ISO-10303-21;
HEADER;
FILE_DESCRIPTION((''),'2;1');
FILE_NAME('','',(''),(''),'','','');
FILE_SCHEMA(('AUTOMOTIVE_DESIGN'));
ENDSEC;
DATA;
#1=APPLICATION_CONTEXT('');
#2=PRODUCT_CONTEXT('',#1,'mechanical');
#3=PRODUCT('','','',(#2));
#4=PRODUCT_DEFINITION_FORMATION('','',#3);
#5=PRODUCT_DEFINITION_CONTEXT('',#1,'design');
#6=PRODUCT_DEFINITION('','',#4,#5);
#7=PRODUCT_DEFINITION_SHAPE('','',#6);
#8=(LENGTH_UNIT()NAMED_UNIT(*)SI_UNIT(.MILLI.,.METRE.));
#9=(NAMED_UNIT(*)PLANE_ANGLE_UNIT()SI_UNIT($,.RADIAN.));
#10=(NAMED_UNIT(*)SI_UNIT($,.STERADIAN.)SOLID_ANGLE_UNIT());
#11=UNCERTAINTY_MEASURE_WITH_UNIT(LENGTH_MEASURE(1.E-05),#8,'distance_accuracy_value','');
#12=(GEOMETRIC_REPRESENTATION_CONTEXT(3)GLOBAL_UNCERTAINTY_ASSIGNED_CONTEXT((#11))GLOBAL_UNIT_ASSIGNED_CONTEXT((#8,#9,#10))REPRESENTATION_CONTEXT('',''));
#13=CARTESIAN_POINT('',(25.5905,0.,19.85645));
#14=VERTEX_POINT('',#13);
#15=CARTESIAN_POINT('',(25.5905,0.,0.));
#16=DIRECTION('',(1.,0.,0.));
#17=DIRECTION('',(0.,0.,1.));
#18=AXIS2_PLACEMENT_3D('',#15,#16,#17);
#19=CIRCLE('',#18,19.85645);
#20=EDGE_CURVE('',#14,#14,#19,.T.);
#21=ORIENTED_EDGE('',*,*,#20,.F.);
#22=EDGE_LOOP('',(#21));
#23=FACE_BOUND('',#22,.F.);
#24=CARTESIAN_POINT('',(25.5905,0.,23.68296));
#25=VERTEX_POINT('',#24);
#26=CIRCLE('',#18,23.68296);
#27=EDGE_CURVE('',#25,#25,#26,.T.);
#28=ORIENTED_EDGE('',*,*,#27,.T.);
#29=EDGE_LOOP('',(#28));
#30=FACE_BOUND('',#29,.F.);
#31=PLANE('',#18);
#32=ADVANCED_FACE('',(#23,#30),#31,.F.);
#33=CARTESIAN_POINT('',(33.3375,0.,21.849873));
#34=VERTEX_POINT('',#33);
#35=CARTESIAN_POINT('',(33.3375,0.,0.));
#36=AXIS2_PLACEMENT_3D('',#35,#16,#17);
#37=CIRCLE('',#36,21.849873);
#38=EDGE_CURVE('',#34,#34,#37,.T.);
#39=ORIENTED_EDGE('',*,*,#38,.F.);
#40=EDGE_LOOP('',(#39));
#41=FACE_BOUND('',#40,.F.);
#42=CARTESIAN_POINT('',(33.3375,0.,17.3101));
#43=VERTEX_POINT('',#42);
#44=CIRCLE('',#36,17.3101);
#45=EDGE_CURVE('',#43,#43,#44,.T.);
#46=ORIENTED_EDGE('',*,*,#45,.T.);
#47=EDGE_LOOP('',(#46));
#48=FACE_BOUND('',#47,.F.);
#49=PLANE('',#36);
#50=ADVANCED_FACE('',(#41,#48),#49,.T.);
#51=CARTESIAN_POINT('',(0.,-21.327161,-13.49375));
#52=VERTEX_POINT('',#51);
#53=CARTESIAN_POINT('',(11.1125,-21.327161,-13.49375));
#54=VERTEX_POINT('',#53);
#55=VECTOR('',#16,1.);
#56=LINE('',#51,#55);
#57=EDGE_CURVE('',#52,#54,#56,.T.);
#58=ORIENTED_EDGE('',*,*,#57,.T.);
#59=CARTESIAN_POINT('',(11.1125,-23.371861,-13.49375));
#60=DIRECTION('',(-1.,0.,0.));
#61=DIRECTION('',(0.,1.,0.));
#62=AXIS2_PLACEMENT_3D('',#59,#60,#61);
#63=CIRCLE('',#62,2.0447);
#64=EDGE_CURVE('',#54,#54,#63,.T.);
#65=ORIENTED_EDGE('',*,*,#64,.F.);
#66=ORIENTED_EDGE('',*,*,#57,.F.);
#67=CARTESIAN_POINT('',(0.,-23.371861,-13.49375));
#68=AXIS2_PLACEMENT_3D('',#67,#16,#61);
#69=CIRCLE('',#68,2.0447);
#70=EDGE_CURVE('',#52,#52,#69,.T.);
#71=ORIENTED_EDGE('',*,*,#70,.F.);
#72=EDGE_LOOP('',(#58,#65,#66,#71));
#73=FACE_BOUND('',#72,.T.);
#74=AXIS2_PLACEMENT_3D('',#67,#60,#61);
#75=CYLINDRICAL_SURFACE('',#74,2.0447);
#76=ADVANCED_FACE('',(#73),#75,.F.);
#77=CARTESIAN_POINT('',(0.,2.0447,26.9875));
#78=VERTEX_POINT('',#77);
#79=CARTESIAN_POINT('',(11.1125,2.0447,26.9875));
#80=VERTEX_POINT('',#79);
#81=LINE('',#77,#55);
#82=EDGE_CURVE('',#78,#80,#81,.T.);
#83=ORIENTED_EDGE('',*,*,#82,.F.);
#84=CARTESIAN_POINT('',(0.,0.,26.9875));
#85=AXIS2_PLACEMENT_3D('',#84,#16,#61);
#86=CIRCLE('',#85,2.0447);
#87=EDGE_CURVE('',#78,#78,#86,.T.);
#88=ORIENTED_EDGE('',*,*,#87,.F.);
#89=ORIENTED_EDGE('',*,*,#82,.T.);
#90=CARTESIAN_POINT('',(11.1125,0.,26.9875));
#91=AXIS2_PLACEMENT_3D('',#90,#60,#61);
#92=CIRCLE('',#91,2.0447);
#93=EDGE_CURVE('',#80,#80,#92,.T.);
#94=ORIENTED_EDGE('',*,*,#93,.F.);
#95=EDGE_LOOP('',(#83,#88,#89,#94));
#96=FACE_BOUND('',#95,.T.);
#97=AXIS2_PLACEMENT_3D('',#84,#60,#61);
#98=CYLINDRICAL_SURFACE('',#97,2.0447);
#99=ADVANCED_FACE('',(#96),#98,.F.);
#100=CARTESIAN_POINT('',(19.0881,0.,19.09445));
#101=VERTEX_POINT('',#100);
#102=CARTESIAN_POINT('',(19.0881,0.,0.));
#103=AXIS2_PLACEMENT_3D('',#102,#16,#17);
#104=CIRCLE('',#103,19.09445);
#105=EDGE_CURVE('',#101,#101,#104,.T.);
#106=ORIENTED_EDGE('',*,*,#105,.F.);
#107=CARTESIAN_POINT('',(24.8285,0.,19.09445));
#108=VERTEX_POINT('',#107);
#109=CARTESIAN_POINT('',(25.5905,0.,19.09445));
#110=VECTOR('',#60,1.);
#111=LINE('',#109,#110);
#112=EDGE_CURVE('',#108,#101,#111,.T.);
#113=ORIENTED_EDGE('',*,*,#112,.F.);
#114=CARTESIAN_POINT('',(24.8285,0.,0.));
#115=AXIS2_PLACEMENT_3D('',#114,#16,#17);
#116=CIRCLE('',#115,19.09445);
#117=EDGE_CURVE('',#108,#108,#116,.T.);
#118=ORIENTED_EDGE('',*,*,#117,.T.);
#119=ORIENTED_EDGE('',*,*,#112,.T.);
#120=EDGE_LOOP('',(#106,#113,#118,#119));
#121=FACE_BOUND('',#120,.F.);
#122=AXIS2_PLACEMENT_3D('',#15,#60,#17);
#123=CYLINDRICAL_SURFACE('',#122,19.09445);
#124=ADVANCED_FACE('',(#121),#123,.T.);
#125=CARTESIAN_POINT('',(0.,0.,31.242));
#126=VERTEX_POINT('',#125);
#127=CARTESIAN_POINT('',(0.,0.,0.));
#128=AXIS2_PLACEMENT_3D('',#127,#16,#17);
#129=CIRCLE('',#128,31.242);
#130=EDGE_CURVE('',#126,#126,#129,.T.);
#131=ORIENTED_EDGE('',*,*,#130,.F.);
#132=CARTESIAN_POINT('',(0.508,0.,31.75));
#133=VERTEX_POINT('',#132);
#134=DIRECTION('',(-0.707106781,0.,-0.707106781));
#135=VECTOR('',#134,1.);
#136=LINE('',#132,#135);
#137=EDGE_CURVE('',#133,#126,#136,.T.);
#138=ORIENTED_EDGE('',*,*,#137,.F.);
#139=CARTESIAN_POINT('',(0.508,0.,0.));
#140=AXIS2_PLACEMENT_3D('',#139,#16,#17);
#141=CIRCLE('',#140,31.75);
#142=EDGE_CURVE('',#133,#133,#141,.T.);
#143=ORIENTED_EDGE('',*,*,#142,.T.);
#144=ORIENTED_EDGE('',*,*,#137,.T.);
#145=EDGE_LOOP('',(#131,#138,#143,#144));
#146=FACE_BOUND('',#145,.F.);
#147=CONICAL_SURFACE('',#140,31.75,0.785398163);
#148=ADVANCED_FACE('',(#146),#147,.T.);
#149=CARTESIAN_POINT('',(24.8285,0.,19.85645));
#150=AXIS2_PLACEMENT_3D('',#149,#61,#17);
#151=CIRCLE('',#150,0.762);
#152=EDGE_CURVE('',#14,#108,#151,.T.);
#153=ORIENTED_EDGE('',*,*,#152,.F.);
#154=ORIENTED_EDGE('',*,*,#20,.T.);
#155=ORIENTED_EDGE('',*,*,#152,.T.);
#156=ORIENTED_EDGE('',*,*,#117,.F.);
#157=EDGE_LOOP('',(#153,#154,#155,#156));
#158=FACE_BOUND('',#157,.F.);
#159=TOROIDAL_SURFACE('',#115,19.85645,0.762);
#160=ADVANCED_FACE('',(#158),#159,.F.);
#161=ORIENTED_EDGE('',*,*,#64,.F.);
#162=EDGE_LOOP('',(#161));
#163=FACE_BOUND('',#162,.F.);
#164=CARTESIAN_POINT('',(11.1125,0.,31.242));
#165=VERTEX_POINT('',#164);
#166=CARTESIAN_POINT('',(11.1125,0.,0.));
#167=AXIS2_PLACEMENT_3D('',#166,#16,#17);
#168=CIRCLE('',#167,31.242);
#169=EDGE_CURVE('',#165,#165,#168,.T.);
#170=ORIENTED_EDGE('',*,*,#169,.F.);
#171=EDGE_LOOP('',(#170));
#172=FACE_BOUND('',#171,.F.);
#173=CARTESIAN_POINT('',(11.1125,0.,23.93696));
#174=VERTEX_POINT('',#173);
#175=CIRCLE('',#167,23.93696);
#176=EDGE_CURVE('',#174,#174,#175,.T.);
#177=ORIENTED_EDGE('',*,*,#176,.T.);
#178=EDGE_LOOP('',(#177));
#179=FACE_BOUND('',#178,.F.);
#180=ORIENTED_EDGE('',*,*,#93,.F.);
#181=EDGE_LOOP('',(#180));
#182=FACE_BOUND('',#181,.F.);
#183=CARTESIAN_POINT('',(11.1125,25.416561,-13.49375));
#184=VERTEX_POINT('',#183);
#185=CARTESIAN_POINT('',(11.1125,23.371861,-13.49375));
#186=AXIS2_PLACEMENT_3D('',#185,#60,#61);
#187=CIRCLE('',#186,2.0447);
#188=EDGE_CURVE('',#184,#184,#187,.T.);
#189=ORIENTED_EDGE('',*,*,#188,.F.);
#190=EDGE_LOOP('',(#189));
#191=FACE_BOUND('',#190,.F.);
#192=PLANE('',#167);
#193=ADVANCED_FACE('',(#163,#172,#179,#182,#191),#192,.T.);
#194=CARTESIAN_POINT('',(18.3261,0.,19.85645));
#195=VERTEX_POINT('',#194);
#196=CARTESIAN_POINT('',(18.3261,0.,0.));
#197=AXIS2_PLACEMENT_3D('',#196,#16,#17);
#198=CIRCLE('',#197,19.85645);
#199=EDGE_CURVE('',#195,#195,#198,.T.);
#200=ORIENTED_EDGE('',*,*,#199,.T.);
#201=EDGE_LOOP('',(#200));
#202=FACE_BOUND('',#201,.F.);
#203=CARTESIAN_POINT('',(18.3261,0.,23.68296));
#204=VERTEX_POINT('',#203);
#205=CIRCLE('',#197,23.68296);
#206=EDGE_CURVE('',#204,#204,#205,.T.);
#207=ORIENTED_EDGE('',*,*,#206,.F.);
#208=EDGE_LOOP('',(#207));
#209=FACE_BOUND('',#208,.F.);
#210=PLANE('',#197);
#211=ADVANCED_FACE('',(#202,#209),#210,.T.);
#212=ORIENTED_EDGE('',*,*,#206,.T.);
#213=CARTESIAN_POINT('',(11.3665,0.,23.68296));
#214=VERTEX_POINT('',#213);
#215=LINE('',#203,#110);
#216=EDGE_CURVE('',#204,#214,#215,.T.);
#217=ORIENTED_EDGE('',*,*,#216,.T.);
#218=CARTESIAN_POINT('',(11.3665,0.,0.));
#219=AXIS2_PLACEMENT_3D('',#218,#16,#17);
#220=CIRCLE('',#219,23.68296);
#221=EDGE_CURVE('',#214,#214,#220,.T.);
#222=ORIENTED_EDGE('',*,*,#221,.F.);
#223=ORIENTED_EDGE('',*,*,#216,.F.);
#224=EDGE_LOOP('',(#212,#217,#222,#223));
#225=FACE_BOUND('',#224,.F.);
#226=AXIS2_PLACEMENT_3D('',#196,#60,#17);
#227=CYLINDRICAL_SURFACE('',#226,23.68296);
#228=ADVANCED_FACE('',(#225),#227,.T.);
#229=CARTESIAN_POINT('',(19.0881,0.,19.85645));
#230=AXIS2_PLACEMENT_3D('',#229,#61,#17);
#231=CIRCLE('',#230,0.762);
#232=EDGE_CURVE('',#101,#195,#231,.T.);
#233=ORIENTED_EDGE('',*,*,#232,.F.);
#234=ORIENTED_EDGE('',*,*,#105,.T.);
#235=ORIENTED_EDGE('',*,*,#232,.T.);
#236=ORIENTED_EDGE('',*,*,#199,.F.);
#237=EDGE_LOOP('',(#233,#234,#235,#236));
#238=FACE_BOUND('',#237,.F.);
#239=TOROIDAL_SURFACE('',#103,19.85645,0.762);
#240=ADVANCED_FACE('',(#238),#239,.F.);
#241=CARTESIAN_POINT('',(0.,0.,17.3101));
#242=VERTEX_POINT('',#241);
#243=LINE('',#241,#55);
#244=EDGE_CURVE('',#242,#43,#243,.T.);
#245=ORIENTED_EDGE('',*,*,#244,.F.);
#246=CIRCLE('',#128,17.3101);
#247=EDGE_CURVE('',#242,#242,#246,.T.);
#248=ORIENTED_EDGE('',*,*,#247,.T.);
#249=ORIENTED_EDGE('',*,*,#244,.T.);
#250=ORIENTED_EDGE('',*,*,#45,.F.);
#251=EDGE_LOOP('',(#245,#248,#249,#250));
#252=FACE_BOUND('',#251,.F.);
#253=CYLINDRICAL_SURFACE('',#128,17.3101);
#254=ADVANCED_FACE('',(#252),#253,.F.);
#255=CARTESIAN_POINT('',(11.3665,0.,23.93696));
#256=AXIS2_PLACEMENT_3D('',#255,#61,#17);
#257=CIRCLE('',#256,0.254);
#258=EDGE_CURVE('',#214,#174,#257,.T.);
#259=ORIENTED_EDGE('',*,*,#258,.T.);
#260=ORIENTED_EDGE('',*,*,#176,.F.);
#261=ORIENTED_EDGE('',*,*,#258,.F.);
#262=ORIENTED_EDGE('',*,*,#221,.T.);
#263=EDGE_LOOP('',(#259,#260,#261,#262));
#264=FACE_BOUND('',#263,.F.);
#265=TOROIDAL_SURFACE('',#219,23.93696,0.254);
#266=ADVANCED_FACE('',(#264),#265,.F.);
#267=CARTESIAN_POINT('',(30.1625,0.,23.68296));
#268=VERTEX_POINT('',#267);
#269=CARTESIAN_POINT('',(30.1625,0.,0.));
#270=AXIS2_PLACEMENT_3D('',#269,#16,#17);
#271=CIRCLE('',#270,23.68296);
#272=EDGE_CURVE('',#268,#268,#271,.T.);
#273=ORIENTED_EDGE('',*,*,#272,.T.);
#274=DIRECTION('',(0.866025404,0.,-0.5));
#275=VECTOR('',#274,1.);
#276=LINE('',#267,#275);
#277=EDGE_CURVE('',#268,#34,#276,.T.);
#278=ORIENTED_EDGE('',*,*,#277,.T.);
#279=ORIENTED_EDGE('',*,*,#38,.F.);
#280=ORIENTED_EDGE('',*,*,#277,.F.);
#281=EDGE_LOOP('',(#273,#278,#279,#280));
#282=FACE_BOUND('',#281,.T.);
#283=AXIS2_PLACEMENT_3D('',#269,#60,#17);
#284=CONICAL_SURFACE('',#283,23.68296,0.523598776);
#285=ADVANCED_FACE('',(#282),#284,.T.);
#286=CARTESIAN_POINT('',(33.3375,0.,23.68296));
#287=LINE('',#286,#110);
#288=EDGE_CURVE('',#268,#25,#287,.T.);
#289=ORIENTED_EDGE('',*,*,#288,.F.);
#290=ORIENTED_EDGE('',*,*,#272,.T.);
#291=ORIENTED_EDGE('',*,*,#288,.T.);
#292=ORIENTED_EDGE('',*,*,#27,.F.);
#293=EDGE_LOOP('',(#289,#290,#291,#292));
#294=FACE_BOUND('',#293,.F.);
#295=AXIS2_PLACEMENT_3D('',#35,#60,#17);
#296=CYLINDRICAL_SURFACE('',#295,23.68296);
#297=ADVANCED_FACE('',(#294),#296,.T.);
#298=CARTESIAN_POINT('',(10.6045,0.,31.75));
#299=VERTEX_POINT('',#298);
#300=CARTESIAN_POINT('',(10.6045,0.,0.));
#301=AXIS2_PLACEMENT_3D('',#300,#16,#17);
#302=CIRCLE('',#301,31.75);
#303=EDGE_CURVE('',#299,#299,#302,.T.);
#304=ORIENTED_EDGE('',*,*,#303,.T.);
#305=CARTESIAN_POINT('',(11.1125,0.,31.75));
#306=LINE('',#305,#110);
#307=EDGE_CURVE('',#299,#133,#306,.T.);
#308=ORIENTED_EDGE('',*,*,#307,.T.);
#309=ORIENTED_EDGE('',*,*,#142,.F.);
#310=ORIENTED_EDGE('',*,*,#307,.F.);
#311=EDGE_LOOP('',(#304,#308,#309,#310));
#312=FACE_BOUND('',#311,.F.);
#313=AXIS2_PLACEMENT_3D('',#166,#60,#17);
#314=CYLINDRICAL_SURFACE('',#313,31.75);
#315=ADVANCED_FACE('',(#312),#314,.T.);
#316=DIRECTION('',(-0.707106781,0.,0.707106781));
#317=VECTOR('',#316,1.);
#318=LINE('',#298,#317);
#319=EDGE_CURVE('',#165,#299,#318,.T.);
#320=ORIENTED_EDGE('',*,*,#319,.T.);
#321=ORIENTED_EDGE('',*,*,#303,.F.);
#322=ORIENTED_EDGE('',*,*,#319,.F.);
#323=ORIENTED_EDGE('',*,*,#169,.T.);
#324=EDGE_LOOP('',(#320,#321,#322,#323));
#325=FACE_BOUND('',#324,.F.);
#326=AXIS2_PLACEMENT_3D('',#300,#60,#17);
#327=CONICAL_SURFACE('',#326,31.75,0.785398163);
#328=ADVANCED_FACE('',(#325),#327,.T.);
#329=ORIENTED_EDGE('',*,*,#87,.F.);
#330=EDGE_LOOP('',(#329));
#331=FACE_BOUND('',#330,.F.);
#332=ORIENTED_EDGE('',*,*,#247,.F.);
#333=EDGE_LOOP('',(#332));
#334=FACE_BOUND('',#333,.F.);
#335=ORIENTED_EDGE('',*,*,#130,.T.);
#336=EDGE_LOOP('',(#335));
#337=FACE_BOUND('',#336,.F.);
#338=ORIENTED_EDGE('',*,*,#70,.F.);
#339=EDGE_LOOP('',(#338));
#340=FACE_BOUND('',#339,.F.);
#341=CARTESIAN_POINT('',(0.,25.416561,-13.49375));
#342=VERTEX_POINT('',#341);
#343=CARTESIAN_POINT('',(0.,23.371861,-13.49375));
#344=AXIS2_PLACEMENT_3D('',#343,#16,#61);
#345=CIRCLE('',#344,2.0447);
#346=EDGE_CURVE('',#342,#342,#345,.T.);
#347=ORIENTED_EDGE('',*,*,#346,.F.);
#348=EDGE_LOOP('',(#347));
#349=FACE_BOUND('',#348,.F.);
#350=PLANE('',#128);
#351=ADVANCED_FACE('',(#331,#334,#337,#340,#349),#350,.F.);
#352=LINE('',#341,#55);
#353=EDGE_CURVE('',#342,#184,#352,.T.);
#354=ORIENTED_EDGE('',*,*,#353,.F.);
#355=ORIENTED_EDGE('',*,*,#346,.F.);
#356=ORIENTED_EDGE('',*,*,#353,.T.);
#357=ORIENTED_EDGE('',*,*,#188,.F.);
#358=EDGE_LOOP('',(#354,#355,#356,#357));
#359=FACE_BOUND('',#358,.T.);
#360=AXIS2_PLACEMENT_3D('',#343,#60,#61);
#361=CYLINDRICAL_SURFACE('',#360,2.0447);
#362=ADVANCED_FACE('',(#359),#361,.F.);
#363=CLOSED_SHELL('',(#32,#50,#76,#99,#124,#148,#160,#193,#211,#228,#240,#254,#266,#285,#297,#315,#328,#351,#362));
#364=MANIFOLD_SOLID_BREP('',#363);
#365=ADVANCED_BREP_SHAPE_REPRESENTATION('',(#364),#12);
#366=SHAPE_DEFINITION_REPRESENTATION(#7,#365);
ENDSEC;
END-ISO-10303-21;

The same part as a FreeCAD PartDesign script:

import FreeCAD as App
import Part
import Sketcher
from FreeCAD import Vector
Q = App.Units.Quantity


def edges_at(feature, points):
    """Names of the edges that pass closest to the given points."""
    edges = feature.Shape.Edges
    near = lambda p: min(range(len(edges)), key=lambda i: edges[i].distToShape(Part.Vertex(*p))[0])
    return sorted({f"Edge{near(p) + 1}" for p in points})

doc = App.newDocument("Part")
body = doc.addObject("PartDesign::Body", "Body")

# Sketch on XZ plane
sketch1 = body.newObject("Sketcher::SketchObject", "Sketch")
sketch1.AttachmentSupport = (doc.getObject("XZ_Plane"), [""])
sketch1.MapMode = "FlatFace"
sketch1.addGeometry([
    Part.LineSegment(Vector(11.1125, 23.68296, 0), Vector(11.1125, 31.75, 0)),  # 0
    Part.LineSegment(Vector(11.1125, 31.75, 0), Vector(0, 31.75, 0)),  # 1
    Part.LineSegment(Vector(0, 31.75, 0), Vector(0, 17.3101, 0)),  # 2
    Part.LineSegment(Vector(0, 17.3101, 0), Vector(33.3375, 17.3101, 0)),  # 3
    Part.LineSegment(Vector(33.3375, 17.3101, 0), Vector(33.3375, 23.68296, 0)),  # 4
    Part.LineSegment(Vector(33.3375, 23.68296, 0), Vector(25.5905, 23.68296, 0)),  # 5
    Part.LineSegment(Vector(25.5905, 23.68296, 0), Vector(25.5905, 19.09445, 0)),  # 6
    Part.LineSegment(Vector(25.5905, 19.09445, 0), Vector(18.3261, 19.09445, 0)),  # 7
    Part.LineSegment(Vector(18.3261, 19.09445, 0), Vector(18.3261, 23.68296, 0)),  # 8
    Part.LineSegment(Vector(18.3261, 23.68296, 0), Vector(11.1125, 23.68296, 0)),  # 9
], False)
sketch1.addConstraint([
    Sketcher.Constraint("Coincident", 0, 2, 1, 1),
    Sketcher.Constraint("Coincident", 1, 2, 2, 1),
    Sketcher.Constraint("Coincident", 2, 2, 3, 1),
    Sketcher.Constraint("Coincident", 3, 2, 4, 1),
    Sketcher.Constraint("Coincident", 4, 2, 5, 1),
    Sketcher.Constraint("Coincident", 5, 2, 6, 1),
    Sketcher.Constraint("Coincident", 6, 2, 7, 1),
    Sketcher.Constraint("Coincident", 7, 2, 8, 1),
    Sketcher.Constraint("Coincident", 8, 2, 9, 1),
    Sketcher.Constraint("Coincident", 9, 2, 0, 1),
    Sketcher.Constraint("Vertical", 0),
    Sketcher.Constraint("Horizontal", 1),
    Sketcher.Constraint("Vertical", 2),
    Sketcher.Constraint("Horizontal", 3),
    Sketcher.Constraint("Vertical", 4),
    Sketcher.Constraint("Horizontal", 5),
    Sketcher.Constraint("Vertical", 6),
    Sketcher.Constraint("Horizontal", 7),
    Sketcher.Constraint("Vertical", 8),
    Sketcher.Constraint("Horizontal", 9),
    Sketcher.Constraint("PointOnObject", 1, 2, -2),
    Sketcher.Constraint("Horizontal", 5, 2, 8, 2),
    Sketcher.Constraint("DistanceX", 1, 2, 1, 1, Q("0.4375 in")),
    Sketcher.Constraint("DistanceX", 3, 1, 3, 2, Q("1.3125 in")),
    Sketcher.Constraint("DistanceX", 5, 2, 5, 1, Q("0.305 in")),
    Sketcher.Constraint("DistanceX", 7, 2, 7, 1, Q("0.286 in")),
    Sketcher.Constraint("DistanceY", -1, 1, 0, 2, Q("1.25 in")),
    Sketcher.Constraint("DistanceY", 0, 1, 0, 2, Q("0.3176 in")),
    Sketcher.Constraint("DistanceY", 2, 2, 2, 1, Q("0.5685 in")),
    Sketcher.Constraint("DistanceY", 6, 2, 6, 1, 4.58851),
])
revolution = body.newObject("PartDesign::Revolution", "Revolution")
revolution.Profile = sketch1
revolution.ReferenceAxis = (sketch1, ["H_Axis"])
revolution.Angle = 360
doc.recompute()

chamfer = body.newObject("PartDesign::Chamfer", "Chamfer")
chamfer.Base = (revolution, edges_at(revolution, [(33.337, 0, -23.683)]))
chamfer.ChamferType = "Two distances"
chamfer.Size = Q("0.125 in")
chamfer.Size2 = 1.833087
chamfer.FlipDirection = True
doc.recompute()

fillet = body.newObject("PartDesign::Fillet", "Fillet")
fillet.Base = (chamfer, edges_at(chamfer, [(18.326, 0, -19.094), (25.59, 0, -19.094)]))
fillet.Radius = Q("0.03 in")
doc.recompute()

fillet2 = body.newObject("PartDesign::Fillet", "Fillet001")
fillet2.Base = (fillet, edges_at(fillet, [(11.113, 0, -23.683)]))
fillet2.Radius = Q("0.01 in")
doc.recompute()

chamfer2 = body.newObject("PartDesign::Chamfer", "Chamfer001")
chamfer2.Base = (fillet2, edges_at(fillet2, [(11.113, 0, -31.75), (0, 0, -31.75)]))
chamfer2.Size = Q("0.02 in")

# Sketch on YZ plane
sketch2 = body.newObject("Sketcher::SketchObject", "Sketch001")
sketch2.AttachmentSupport = (doc.getObject("YZ_Plane"), [""])
sketch2.MapMode = "FlatFace"
sketch2.addGeometry([
    Part.Circle(Vector(0, 26.9875, 0), Vector(0, 0, 1), 2.0447),
    Part.Circle(Vector(23.371861, -13.49375, 0), Vector(0, 0, 1), 2.0447),
    Part.Circle(Vector(-23.371861, -13.49375, 0), Vector(0, 0, 1), 2.0447),
], False)
sketch2.addConstraint([
    Sketcher.Constraint("Equal", 0, 1),
    Sketcher.Constraint("Equal", 1, 2),
    Sketcher.Constraint("Symmetric", 1, 3, 2, 3, -2),
    Sketcher.Constraint("PointOnObject", 0, 3, -2),
    Sketcher.Constraint("Diameter", 0, Q("0.161 in")),
    Sketcher.Constraint("DistanceY", -1, 1, 0, 3, Q("1.0625 in")),
    Sketcher.Constraint("DistanceY", 1, 3, -1, 1, Q("0.53125 in")),
    Sketcher.Constraint("DistanceX", -1, 1, 1, 3, 23.371861),
])
pocket1 = body.newObject("PartDesign::Pocket", "Pocket")
pocket1.Profile = sketch2
pocket1.Length = Q("1 in")
pocket1.Reversed = True

doc.recompute()
